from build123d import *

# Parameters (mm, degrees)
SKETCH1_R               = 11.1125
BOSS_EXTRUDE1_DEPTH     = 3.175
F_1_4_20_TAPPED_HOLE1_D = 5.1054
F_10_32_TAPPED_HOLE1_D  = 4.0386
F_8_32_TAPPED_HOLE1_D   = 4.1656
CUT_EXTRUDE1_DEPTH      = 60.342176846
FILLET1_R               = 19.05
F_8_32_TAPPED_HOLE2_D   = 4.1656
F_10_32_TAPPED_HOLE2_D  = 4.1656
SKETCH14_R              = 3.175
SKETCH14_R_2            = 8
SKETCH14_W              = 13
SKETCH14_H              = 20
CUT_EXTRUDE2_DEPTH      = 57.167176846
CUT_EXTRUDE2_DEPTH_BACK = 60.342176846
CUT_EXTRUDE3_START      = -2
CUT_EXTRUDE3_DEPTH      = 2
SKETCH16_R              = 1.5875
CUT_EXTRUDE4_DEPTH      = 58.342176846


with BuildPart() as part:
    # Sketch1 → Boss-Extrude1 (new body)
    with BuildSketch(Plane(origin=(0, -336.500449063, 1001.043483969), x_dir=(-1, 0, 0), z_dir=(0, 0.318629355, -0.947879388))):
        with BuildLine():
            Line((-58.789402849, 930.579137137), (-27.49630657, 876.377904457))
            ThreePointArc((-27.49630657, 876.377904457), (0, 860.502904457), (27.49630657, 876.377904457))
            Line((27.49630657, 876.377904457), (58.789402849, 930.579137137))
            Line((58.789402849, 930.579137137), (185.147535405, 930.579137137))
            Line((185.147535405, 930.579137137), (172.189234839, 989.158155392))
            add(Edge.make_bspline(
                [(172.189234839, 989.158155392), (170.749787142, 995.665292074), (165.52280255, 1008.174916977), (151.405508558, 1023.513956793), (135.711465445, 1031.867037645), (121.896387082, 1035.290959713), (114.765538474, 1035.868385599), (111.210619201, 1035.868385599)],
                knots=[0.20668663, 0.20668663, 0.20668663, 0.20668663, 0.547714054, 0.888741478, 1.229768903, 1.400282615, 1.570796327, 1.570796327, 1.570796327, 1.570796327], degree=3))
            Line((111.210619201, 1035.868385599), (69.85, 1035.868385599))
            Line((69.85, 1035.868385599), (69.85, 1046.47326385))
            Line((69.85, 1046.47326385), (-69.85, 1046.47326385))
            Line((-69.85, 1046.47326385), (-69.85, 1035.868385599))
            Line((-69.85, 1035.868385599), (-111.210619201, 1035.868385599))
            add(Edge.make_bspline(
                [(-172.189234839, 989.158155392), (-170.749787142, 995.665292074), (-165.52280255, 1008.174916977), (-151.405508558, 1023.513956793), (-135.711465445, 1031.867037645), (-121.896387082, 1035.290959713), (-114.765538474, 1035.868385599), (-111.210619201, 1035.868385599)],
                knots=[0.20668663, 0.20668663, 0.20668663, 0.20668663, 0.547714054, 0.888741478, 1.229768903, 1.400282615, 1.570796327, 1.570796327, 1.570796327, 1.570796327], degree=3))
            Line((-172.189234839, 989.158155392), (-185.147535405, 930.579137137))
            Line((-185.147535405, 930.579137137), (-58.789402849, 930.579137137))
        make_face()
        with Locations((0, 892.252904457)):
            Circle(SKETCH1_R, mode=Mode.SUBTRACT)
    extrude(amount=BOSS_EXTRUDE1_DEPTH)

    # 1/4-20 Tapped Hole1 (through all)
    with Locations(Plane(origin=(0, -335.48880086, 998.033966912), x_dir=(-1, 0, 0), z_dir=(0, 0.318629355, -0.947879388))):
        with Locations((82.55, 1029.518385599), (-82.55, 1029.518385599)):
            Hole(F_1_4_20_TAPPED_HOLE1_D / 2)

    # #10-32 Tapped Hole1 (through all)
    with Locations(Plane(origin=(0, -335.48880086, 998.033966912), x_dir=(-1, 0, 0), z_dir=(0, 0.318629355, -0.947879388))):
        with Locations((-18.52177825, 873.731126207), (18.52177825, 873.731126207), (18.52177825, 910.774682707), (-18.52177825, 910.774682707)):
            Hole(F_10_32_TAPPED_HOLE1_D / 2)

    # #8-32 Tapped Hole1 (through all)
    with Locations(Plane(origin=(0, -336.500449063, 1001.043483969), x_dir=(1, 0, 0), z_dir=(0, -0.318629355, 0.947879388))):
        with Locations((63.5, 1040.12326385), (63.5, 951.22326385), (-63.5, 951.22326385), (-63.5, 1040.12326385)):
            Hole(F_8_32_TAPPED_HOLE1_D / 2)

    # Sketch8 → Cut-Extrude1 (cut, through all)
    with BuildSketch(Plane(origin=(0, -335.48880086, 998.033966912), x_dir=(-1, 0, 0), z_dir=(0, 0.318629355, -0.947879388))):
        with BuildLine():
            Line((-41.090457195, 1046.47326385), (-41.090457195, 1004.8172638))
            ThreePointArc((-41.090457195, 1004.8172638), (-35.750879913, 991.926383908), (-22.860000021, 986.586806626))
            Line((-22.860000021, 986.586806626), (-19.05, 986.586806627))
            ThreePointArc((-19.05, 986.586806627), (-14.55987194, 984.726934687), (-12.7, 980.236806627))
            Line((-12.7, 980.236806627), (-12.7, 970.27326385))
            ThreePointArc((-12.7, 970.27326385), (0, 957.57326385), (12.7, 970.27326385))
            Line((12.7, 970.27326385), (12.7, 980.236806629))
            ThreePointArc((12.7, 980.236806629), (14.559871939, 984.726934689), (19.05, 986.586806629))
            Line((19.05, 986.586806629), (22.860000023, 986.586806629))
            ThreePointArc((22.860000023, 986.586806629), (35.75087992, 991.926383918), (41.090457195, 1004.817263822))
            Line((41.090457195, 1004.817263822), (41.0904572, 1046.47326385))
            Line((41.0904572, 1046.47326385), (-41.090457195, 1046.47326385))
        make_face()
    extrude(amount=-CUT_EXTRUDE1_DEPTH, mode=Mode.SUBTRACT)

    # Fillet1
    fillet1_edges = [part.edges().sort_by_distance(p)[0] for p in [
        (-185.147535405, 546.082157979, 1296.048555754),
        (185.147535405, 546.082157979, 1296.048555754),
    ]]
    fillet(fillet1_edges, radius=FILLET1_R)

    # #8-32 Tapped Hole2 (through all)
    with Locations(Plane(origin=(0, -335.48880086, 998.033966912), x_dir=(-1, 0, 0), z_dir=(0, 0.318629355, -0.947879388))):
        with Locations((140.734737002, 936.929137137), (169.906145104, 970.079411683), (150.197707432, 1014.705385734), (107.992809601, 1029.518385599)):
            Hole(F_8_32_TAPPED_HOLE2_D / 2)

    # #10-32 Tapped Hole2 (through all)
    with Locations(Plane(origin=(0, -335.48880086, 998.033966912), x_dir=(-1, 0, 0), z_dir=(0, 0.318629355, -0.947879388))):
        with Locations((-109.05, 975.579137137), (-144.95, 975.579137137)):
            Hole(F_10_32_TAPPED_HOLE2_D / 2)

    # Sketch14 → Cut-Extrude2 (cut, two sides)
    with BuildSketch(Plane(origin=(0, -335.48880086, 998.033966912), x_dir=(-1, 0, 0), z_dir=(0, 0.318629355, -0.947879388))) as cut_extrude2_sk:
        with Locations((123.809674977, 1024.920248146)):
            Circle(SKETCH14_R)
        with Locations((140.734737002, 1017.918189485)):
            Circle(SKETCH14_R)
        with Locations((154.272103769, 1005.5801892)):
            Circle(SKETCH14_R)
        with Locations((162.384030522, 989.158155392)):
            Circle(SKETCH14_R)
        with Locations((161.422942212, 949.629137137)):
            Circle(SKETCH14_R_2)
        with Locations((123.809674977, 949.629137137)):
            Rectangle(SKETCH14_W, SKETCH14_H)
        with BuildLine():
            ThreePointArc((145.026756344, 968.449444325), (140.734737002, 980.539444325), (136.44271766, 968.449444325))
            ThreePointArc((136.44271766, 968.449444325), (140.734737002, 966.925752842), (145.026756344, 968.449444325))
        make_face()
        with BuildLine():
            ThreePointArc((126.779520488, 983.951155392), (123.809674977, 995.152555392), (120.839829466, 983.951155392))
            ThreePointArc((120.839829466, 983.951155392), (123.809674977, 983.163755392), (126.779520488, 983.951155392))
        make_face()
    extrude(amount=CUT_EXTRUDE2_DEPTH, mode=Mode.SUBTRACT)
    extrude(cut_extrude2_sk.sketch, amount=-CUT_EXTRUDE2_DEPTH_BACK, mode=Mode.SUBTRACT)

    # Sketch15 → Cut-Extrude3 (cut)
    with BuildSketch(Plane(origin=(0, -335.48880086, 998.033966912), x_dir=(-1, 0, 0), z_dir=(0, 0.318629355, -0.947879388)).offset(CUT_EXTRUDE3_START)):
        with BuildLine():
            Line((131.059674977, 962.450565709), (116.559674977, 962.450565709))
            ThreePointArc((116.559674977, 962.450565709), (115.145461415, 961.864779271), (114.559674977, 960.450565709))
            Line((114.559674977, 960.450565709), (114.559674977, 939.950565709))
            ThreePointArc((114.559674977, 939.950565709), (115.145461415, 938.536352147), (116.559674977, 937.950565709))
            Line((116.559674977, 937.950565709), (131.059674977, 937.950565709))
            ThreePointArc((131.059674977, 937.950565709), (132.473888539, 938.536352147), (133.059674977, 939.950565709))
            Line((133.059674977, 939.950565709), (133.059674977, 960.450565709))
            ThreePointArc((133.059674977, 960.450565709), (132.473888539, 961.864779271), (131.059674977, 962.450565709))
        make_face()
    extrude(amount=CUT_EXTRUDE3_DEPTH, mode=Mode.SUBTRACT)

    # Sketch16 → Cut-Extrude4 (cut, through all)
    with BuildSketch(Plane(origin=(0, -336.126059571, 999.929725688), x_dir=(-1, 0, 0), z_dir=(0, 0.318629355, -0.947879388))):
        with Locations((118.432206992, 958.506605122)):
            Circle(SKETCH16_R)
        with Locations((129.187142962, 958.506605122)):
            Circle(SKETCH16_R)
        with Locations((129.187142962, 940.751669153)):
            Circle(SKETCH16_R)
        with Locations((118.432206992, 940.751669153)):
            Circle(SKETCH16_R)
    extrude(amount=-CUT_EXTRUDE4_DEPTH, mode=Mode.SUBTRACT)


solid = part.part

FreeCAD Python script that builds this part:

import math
import FreeCAD as App
import Part
import Sketcher
from FreeCAD import Vector
Q = App.Units.Quantity


def edges_at(feature, points):
    """Names of the edges that pass closest to the given points."""
    edges = feature.Shape.Edges
    near = lambda p: min(range(len(edges)), key=lambda i: edges[i].distToShape(Part.Vertex(*p))[0])
    return sorted({f"Edge{near(p) + 1}" for p in points})

doc = App.newDocument("Part")
body = doc.addObject("PartDesign::Body", "Body")

# Sketch on an angled plane
sketch1 = body.newObject("Sketcher::SketchObject", "Sketch")
sketch1.Placement = App.Placement(Vector(0, -336.500449, 1001.043484), App.Rotation(Vector(-1, 0, 0), Vector(0, 0.947879388, 0.318629355), Vector(0, 0.318629355, -0.947879388), "ZXY"))
sketch1.addGeometry([
    Part.LineSegment(Vector(-58.789403, 930.579137, 0), Vector(-27.496307, 876.377905, 0)),  # 0
    Part.ArcOfCircle(Part.Circle(Vector(0, 892.252905, 0), Vector(0, 0, 1), 31.75), math.radians(-150), math.radians(-30)),  # 1
    Part.LineSegment(Vector(27.496307, 876.377905, 0), Vector(58.789403, 930.579137, 0)),  # 2
    Part.LineSegment(Vector(58.789403, 930.579137, 0), Vector(185.147535, 930.579137, 0)),  # 3
    Part.LineSegment(Vector(185.147535, 930.579137, 0), Vector(172.189235, 989.158155, 0)),  # 4
    Part.BSplineCurve([Vector(172.189235, 989.158155, 0), Vector(170.749787, 995.665292, 0), Vector(165.522803, 1008.174917, 0), Vector(151.405509, 1023.513957, 0), Vector(135.711465, 1031.867038, 0), Vector(121.896387, 1035.29096, 0), Vector(114.765538, 1035.868386, 0), Vector(111.210619, 1035.868386, 0)], [4, 1, 1, 1, 1, 4], [0.20668663, 0.547714054, 0.888741478, 1.229768903, 1.400282615, 1.570796327], False, 3, [1, 1, 1, 1, 1, 1, 1, 1], False),  # 5
    Part.LineSegment(Vector(111.210619, 1035.868386, 0), Vector(69.85, 1035.868386, 0)),  # 6
    Part.LineSegment(Vector(69.85, 1035.868386, 0), Vector(69.85, 1046.473264, 0)),  # 7
    Part.LineSegment(Vector(69.85, 1046.473264, 0), Vector(-69.85, 1046.473264, 0)),  # 8
    Part.LineSegment(Vector(-69.85, 1046.473264, 0), Vector(-69.85, 1035.868386, 0)),  # 9
    Part.LineSegment(Vector(-69.85, 1035.868386, 0), Vector(-111.210619, 1035.868386, 0)),  # 10
    Part.BSplineCurve([Vector(-172.189235, 989.158155, 0), Vector(-170.749787, 995.665292, 0), Vector(-165.522803, 1008.174917, 0), Vector(-151.405509, 1023.513957, 0), Vector(-135.711465, 1031.867038, 0), Vector(-121.896387, 1035.29096, 0), Vector(-114.765538, 1035.868386, 0), Vector(-111.210619, 1035.868386, 0)], [4, 1, 1, 1, 1, 4], [0.20668663, 0.547714054, 0.888741478, 1.229768903, 1.400282615, 1.570796327], False, 3, [1, 1, 1, 1, 1, 1, 1, 1], False),  # 11
    Part.LineSegment(Vector(-172.189235, 989.158155, 0), Vector(-185.147535, 930.579137, 0)),  # 12
    Part.LineSegment(Vector(-185.147535, 930.579137, 0), Vector(-58.789403, 930.579137, 0)),  # 13
    Part.Circle(Vector(0, 892.252905, 0), Vector(0, 0, 1), 11.1125),  # 14
], False)
sketch1.addConstraint([
    Sketcher.Constraint("Block", 5),
    Sketcher.Constraint("Block", 11),
    Sketcher.Constraint("Coincident", 0, 2, 1, 1),
    Sketcher.Constraint("Coincident", 1, 2, 2, 1),
    Sketcher.Constraint("Coincident", 2, 2, 3, 1),
    Sketcher.Constraint("Coincident", 3, 2, 4, 1),
    Sketcher.Constraint("Coincident", 4, 2, 5, 1),
    Sketcher.Constraint("Coincident", 5, 2, 6, 1),
    Sketcher.Constraint("Coincident", 6, 2, 7, 1),
    Sketcher.Constraint("Coincident", 7, 2, 8, 1),
    Sketcher.Constraint("Coincident", 8, 2, 9, 1),
    Sketcher.Constraint("Coincident", 9, 2, 10, 1),
    Sketcher.Constraint("Coincident", 10, 2, 11, 2),
    Sketcher.Constraint("Coincident", 11, 1, 12, 1),
    Sketcher.Constraint("Coincident", 12, 2, 13, 1),
    Sketcher.Constraint("Coincident", 13, 2, 0, 1),
    Sketcher.Constraint("Horizontal", 3),
    Sketcher.Constraint("Horizontal", 6),
    Sketcher.Constraint("Vertical", 7),
    Sketcher.Constraint("Horizontal", 8),
    Sketcher.Constraint("Vertical", 9),
    Sketcher.Constraint("Horizontal", 10),
    Sketcher.Constraint("Horizontal", 13),
    Sketcher.Constraint("Coincident", 14, 3, 1, 3),
    Sketcher.Constraint("PointOnObject", 1, 3, -2),
    Sketcher.Constraint("Radius", 1, Q("1.25 in")),
    Sketcher.Constraint("Diameter", 14, Q("0.875 in")),
    Sketcher.Constraint("DistanceX", 8, 2, 8, 1, Q("5.5 in")),
    Sketcher.Constraint("DistanceX", -1, 1, 6, 2, Q("2.75 in")),
    Sketcher.Constraint("DistanceY", 0, 2, 1, 3, Q("0.625 in")),
    Sketcher.Constraint("DistanceY", 1, 2, 1, 3, Q("0.625 in")),
    Sketcher.Constraint("DistanceY", 7, 1, 7, 2, 10.604878),
    Sketcher.Constraint("DistanceX", 4, 2, 3, 2, 12.958301),
    Sketcher.Constraint("DistanceX", 3, 1, 3, 2, 126.358133),
    Sketcher.Constraint("DistanceX", 13, 1, 13, 2, 126.358133),
    Sketcher.Constraint("DistanceY", 3, 2, 4, 2, 58.579018),
    Sketcher.Constraint("DistanceY", 1, 2, 4, 2, 112.780251),
    Sketcher.Constraint("DistanceY", 12, 2, 10, 2, 105.289248),
    Sketcher.Constraint("DistanceX", 12, 2, 0, 2, 157.651229),
])
pad1 = body.newObject("PartDesign::Pad", "Pad")
pad1.Profile = sketch1
pad1.Length = Q("0.125 in")

# Sketch on an angled plane
sketch2 = body.newObject("Sketcher::SketchObject", "Sketch001")
sketch2.Placement = App.Placement(Vector(0, -335.488801, 998.033967), App.Rotation(Vector(-1, 0, 0), Vector(0, 0.947879388, 0.318629355), Vector(0, 0.318629355, -0.947879388), "ZXY"))
sketch2.addGeometry([
    Part.Circle(Vector(82.55, 1029.518386, 0), Vector(0, 0, 1), 2.5527),
    Part.Circle(Vector(-82.55, 1029.518386, 0), Vector(0, 0, 1), 2.5527),
], False)
sketch2.addConstraint([
    Sketcher.Constraint("Equal", 0, 1),
    Sketcher.Constraint("Symmetric", 0, 3, 1, 3, -2),
    Sketcher.Constraint("Diameter", 0, Q("0.201 in")),
    Sketcher.Constraint("DistanceX", 1, 3, 0, 3, Q("6.5 in")),
    Sketcher.Constraint("DistanceY", -1, 1, 0, 3, 1029.518386),
])
doc.recompute()
hole = body.newObject("PartDesign::Hole", "Hole")
hole.Profile = sketch2
hole.ThreadType = "None"
hole.Diameter = Q("0.201 in")
hole.DepthType = "ThroughAll"

# Sketch on an angled plane
sketch3 = body.newObject("Sketcher::SketchObject", "Sketch002")
sketch3.Placement = App.Placement(Vector(0, -335.488801, 998.033967), App.Rotation(Vector(-1, 0, 0), Vector(0, 0.947879388, 0.318629355), Vector(0, 0.318629355, -0.947879388), "ZXY"))
sketch3.addGeometry([
    Part.Circle(Vector(-18.521778, 873.731126, 0), Vector(0, 0, 1), 2.0193),
    Part.Circle(Vector(18.521778, 873.731126, 0), Vector(0, 0, 1), 2.0193),
    Part.Circle(Vector(18.521778, 910.774683, 0), Vector(0, 0, 1), 2.0193),
    Part.Circle(Vector(-18.521778, 910.774683, 0), Vector(0, 0, 1), 2.0193),
], False)
sketch3.addConstraint([
    Sketcher.Constraint("Equal", 0, 1),
    Sketcher.Constraint("Equal", 1, 2),
    Sketcher.Constraint("Equal", 2, 3),
    Sketcher.Constraint("Symmetric", 0, 3, 1, 3, -2),
    Sketcher.Constraint("Symmetric", 2, 3, 3, 3, -2),
    Sketcher.Constraint("Vertical", 1, 3, 2, 3),
    Sketcher.Constraint("Diameter", 0, Q("0.159 in")),
    Sketcher.Constraint("DistanceX", 0, 3, -1, 1, 18.521778),
    Sketcher.Constraint("DistanceY", -1, 1, 0, 3, 873.731126),
    Sketcher.Constraint("DistanceY", -1, 1, 2, 3, 910.774683),
])
doc.recompute()
hole2 = body.newObject("PartDesign::Hole", "Hole001")
hole2.Profile = sketch3
hole2.ThreadType = "None"
hole2.Diameter = Q("0.159 in")
hole2.DepthType = "ThroughAll"

# Sketch on an angled plane
sketch4 = body.newObject("Sketcher::SketchObject", "Sketch003")
sketch4.Placement = App.Placement(Vector(0, -336.500449, 1001.043484), App.Rotation(Vector(1, 0, 0), Vector(0, 0.947879388, 0.318629355), Vector(0, -0.318629355, 0.947879388), "ZXY"))
sketch4.addGeometry([
    Part.Circle(Vector(63.5, 1040.123264, 0), Vector(0, 0, 1), 2.0828),
    Part.Circle(Vector(63.5, 951.223264, 0), Vector(0, 0, 1), 2.0828),
    Part.Circle(Vector(-63.5, 951.223264, 0), Vector(0, 0, 1), 2.0828),
    Part.Circle(Vector(-63.5, 1040.123264, 0), Vector(0, 0, 1), 2.0828),
], False)
sketch4.addConstraint([
    Sketcher.Constraint("Equal", 0, 1),
    Sketcher.Constraint("Equal", 1, 2),
    Sketcher.Constraint("Equal", 2, 3),
    Sketcher.Constraint("Symmetric", 1, 3, 2, 3, -2),
    Sketcher.Constraint("Symmetric", 0, 3, 3, 3, -2),
    Sketcher.Constraint("Vertical", 0, 3, 1, 3),
    Sketcher.Constraint("Diameter", 0, Q("0.164 in")),
    Sketcher.Constraint("DistanceX", 2, 3, 1, 3, Q("5 in")),
    Sketcher.Constraint("DistanceY", 1, 3, 0, 3, Q("3.5 in")),
    Sketcher.Constraint("DistanceY", -1, 1, 0, 3, 1040.123264),
])
doc.recompute()
hole3 = body.newObject("PartDesign::Hole", "Hole002")
hole3.Profile = sketch4
hole3.ThreadType = "None"
hole3.Diameter = Q("0.164 in")
hole3.DepthType = "ThroughAll"

# Sketch on an angled plane
sketch5 = body.newObject("Sketcher::SketchObject", "Sketch004")
sketch5.Placement = App.Placement(Vector(0, -335.488801, 998.033967), App.Rotation(Vector(-1, 0, 0), Vector(0, 0.947879388, 0.318629355), Vector(0, 0.318629355, -0.947879388), "ZXY"))
sketch5.addGeometry([
    Part.LineSegment(Vector(-41.090457, 1046.473264, 0), Vector(-41.090457, 1004.817264, 0)),  # 0
    Part.ArcOfCircle(Part.Circle(Vector(-22.86, 1004.817264, 0), Vector(0, 0, 1), 18.230457), math.radians(180), math.radians(270)),  # 1
    Part.LineSegment(Vector(-22.86, 986.586807, 0), Vector(-19.05, 986.586807, 0)),  # 2
    Part.ArcOfCircle(Part.Circle(Vector(-19.05, 980.236807, 0), Vector(0, 0, 1), 6.35), math.radians(0), math.radians(90)),  # 3
    Part.LineSegment(Vector(-12.7, 980.236807, 0), Vector(-12.7, 970.273264, 0)),  # 4
    Part.ArcOfCircle(Part.Circle(Vector(0, 970.273264, 0), Vector(0, 0, 1), 12.7), math.radians(180), math.radians(360)),  # 5
    Part.LineSegment(Vector(12.7, 970.273264, 0), Vector(12.7, 980.236807, 0)),  # 6
    Part.ArcOfCircle(Part.Circle(Vector(19.05, 980.236807, 0), Vector(0, 0, 1), 6.35), math.radians(90), math.radians(180)),  # 7
    Part.LineSegment(Vector(19.05, 986.586807, 0), Vector(22.86, 986.586807, 0)),  # 8
    Part.ArcOfCircle(Part.Circle(Vector(22.86, 1004.817264, 0), Vector(0, 0, 1), 18.230457), math.radians(-90), math.radians(0)),  # 9
    Part.LineSegment(Vector(41.090457, 1004.817264, 0), Vector(41.090457, 1046.473264, 0)),  # 10
    Part.LineSegment(Vector(41.090457, 1046.473264, 0), Vector(-41.090457, 1046.473264, 0)),  # 11
], False)
sketch5.addConstraint([
    Sketcher.Constraint("Tangent", 0, 2, 1, 1),
    Sketcher.Constraint("Tangent", 1, 2, 2, 1),
    Sketcher.Constraint("Tangent", 2, 2, 3, 2),
    Sketcher.Constraint("Tangent", 3, 1, 4, 1),
    Sketcher.Constraint("Tangent", 4, 2, 5, 1),
    Sketcher.Constraint("Tangent", 5, 2, 6, 1),
    Sketcher.Constraint("Tangent", 6, 2, 7, 2),
    Sketcher.Constraint("Tangent", 7, 1, 8, 1),
    Sketcher.Constraint("Tangent", 8, 2, 9, 1),
    Sketcher.Constraint("Tangent", 9, 2, 10, 1),
    Sketcher.Constraint("Coincident", 10, 2, 11, 1),
    Sketcher.Constraint("Coincident", 11, 2, 0, 1),
    Sketcher.Constraint("Vertical", 0),
    Sketcher.Constraint("Horizontal", 2),
    Sketcher.Constraint("Vertical", 4),
    Sketcher.Constraint("Vertical", 6),
    Sketcher.Constraint("Horizontal", 8),
    Sketcher.Constraint("Vertical", 10),
    Sketcher.Constraint("Horizontal", 11),
    Sketcher.Constraint("Equal", 3, 7),
    Sketcher.Constraint("Equal", 1, 9),
    Sketcher.Constraint("Symmetric", 3, 3, 7, 3, -2),
    Sketcher.Constraint("Equal", 2, 8),
    Sketcher.Constraint("Radius", 5, Q("0.5 in")),
    Sketcher.Constraint("Radius", 3, Q("0.25 in")),
    Sketcher.Constraint("DistanceX", 2, 1, 2, 2, Q("0.15 in")),
    Sketcher.Constraint("DistanceY", 0, 2, 0, 1, Q("1.64 in")),
    Sketcher.Constraint("DistanceY", 5, 3, 1, 3, Q("1.36 in")),
    Sketcher.Constraint("Radius", 1, 18.230457),
    Sketcher.Constraint("DistanceY", -1, 1, 1, 3, 1004.817264),
])
pocket1 = body.newObject("PartDesign::Pocket", "Pocket")
pocket1.Profile = sketch5
pocket1.Type = "ThroughAll"
doc.recompute()

fillet = body.newObject("PartDesign::Fillet", "Fillet")
fillet.Base = (pocket1, edges_at(pocket1, [(-185.148, 546.082, 1296.049), (185.148, 546.082, 1296.049)]))
fillet.Radius = Q("0.75 in")

# Sketch on an angled plane
sketch6 = body.newObject("Sketcher::SketchObject", "Sketch005")
sketch6.Placement = App.Placement(Vector(0, -335.488801, 998.033967), App.Rotation(Vector(-1, 0, 0), Vector(0, 0.947879388, 0.318629355), Vector(0, 0.318629355, -0.947879388), "ZXY"))
sketch6.addGeometry([
    Part.Circle(Vector(140.734737, 936.929137, 0), Vector(0, 0, 1), 2.0828),
    Part.Circle(Vector(169.906145, 970.079412, 0), Vector(0, 0, 1), 2.0828),
    Part.Circle(Vector(150.197707, 1014.705386, 0), Vector(0, 0, 1), 2.0828),
    Part.Circle(Vector(107.99281, 1029.518386, 0), Vector(0, 0, 1), 2.0828),
], False)
sketch6.addConstraint([
    Sketcher.Constraint("Equal", 0, 1),
    Sketcher.Constraint("Equal", 1, 2),
    Sketcher.Constraint("Equal", 2, 3),
    Sketcher.Constraint("Diameter", 0, Q("0.164 in")),
    Sketcher.Constraint("DistanceY", 2, 3, 3, 3, 14.813),
    Sketcher.Constraint("DistanceY", -1, 1, 1, 3, 970.079412),
    Sketcher.Constraint("DistanceX", -1, 1, 3, 3, 107.99281),
    Sketcher.Constraint("DistanceX", 0, 3, 1, 3, 29.171408),
    Sketcher.Constraint("DistanceX", 0, 3, 2, 3, 9.46297),
    Sketcher.Constraint("DistanceY", 0, 3, 2, 3, 77.776249),
    Sketcher.Constraint("DistanceX", -1, 1, 0, 3, 140.734737),
    Sketcher.Constraint("DistanceY", -1, 1, 0, 3, 936.929137),
])
doc.recompute()
hole4 = body.newObject("PartDesign::Hole", "Hole003")
hole4.Profile = sketch6
hole4.ThreadType = "None"
hole4.Diameter = Q("0.164 in")
hole4.DepthType = "ThroughAll"

# Sketch on an angled plane
sketch7 = body.newObject("Sketcher::SketchObject", "Sketch006")
sketch7.Placement = App.Placement(Vector(0, -335.488801, 998.033967), App.Rotation(Vector(-1, 0, 0), Vector(0, 0.947879388, 0.318629355), Vector(0, 0.318629355, -0.947879388), "ZXY"))
sketch7.addGeometry([
    Part.Circle(Vector(-109.05, 975.579137, 0), Vector(0, 0, 1), 2.0828),
    Part.Circle(Vector(-144.95, 975.579137, 0), Vector(0, 0, 1), 2.0828),
], False)
sketch7.addConstraint([
    Sketcher.Constraint("Equal", 0, 1),
    Sketcher.Constraint("Horizontal", 0, 3, 1, 3),
    Sketcher.Constraint("Diameter", 0, Q("0.164 in")),
    Sketcher.Constraint("DistanceX", 0, 3, -1, 1, 109.05),
    Sketcher.Constraint("DistanceX", 1, 3, -1, 1, 144.95),
    Sketcher.Constraint("DistanceY", -1, 1, 0, 3, 975.579137),
])
doc.recompute()
hole5 = body.newObject("PartDesign::Hole", "Hole004")
hole5.Profile = sketch7
hole5.ThreadType = "None"
hole5.Diameter = Q("0.164 in")
hole5.DepthType = "ThroughAll"

# Sketch on an angled plane
sketch8 = body.newObject("Sketcher::SketchObject", "Sketch007")
sketch8.Placement = App.Placement(Vector(0, -335.488801, 998.033967), App.Rotation(Vector(-1, 0, 0), Vector(0, 0.947879388, 0.318629355), Vector(0, 0.318629355, -0.947879388), "ZXY"))
sketch8.addGeometry([
    Part.Circle(Vector(123.809675, 1024.920248, 0), Vector(0, 0, 1), 3.175),  # 0
    Part.Circle(Vector(140.734737, 1017.91819, 0), Vector(0, 0, 1), 3.175),  # 1
    Part.Circle(Vector(154.272104, 1005.580189, 0), Vector(0, 0, 1), 3.175),  # 2
    Part.Circle(Vector(162.384031, 989.158155, 0), Vector(0, 0, 1), 3.175),  # 3
    Part.Circle(Vector(161.422942, 949.629137, 0), Vector(0, 0, 1), 8),  # 4
    Part.LineSegment(Vector(117.309675, 959.629137, 0), Vector(117.309675, 939.629137, 0)),  # 5
    Part.LineSegment(Vector(117.309675, 939.629137, 0), Vector(130.309675, 939.629137, 0)),  # 6
    Part.LineSegment(Vector(130.309675, 939.629137, 0), Vector(130.309675, 959.629137, 0)),  # 7
    Part.LineSegment(Vector(130.309675, 959.629137, 0), Vector(117.309675, 959.629137, 0)),  # 8
    Part.ArcOfCircle(Part.Circle(Vector(140.734737, 973.732599, 0), Vector(0, 0, 1), 6.806846), math.radians(-50.909692), math.radians(230.909692)),  # 9
    Part.ArcOfCircle(Part.Circle(Vector(140.734737, 973.732599, 0), Vector(0, 0, 1), 6.806846), math.radians(-129.090308), math.radians(-50.909692)),  # 10
    Part.ArcOfCircle(Part.Circle(Vector(123.809675, 989.158155, 0), Vector(0, 0, 1), 5.9944), math.radians(-60.301452), math.radians(240.301452)),  # 11
    Part.ArcOfCircle(Part.Circle(Vector(123.809675, 989.158155, 0), Vector(0, 0, 1), 5.9944), math.radians(-119.698548), math.radians(-60.301452)),  # 12
], False)
sketch8.addConstraint([
    Sketcher.Constraint("Coincident", 5, 2, 6, 1),
    Sketcher.Constraint("Coincident", 6, 2, 7, 1),
    Sketcher.Constraint("Coincident", 7, 2, 8, 1),
    Sketcher.Constraint("Coincident", 8, 2, 5, 1),
    Sketcher.Constraint("Tangent", 9, 1, 10, 2),
    Sketcher.Constraint("Coincident", 10, 1, 9, 2),
    Sketcher.Constraint("Tangent", 11, 1, 12, 2),
    Sketcher.Constraint("Coincident", 12, 1, 11, 2),
    Sketcher.Constraint("Vertical", 5),
    Sketcher.Constraint("Horizontal", 6),
    Sketcher.Constraint("Vertical", 7),
    Sketcher.Constraint("Horizontal", 8),
    Sketcher.Constraint("Equal", 0, 1),
    Sketcher.Constraint("Equal", 1, 2),
    Sketcher.Constraint("Equal", 2, 3),
    Sketcher.Constraint("Horizontal", 3, 3, 11, 3),
    Sketcher.Constraint("Horizontal", 9, 1, 10, 1),
    Sketcher.Constraint("Horizontal", 11, 1, 12, 1),
    Sketcher.Constraint("Vertical", 1, 3, 9, 3),
    Sketcher.Constraint("Vertical", 0, 3, 11, 3),
    Sketcher.Constraint("Diameter", 0, Q("0.25 in")),
    Sketcher.Constraint("Radius", 11, Q("0.236 in")),
    Sketcher.Constraint("Diameter", 4, 16.0),
    Sketcher.Constraint("DistanceY", 11, 1, 12, 3, Q("0.205 in")),
    Sketcher.Constraint("DistanceX", 6, 1, 6, 2, 13.0),
    Sketcher.Constraint("DistanceY", 5, 2, 5, 1, 20.0),
    Sketcher.Constraint("Radius", 9, 6.806846),
    Sketcher.Constraint("DistanceY", -1, 1, 9, 3, 973.732599),
    Sketcher.Constraint("DistanceY", 2, 3, 1, 3, 12.338),
    Sketcher.Constraint("DistanceY", 5, 2, 4, 3, 10.0),
    Sketcher.Constraint("DistanceX", 5, 2, 12, 3, 6.5),
    Sketcher.Constraint("DistanceY", -1, 1, 0, 3, 1024.920248),
    Sketcher.Constraint("DistanceY", -1, 1, 1, 3, 1017.91819),
    Sketcher.Constraint("DistanceX", -1, 1, 3, 3, 162.384031),
    Sketcher.Constraint("DistanceX", -1, 1, 11, 1, 126.77952),
    Sketcher.Constraint("DistanceX", 0, 3, 2, 3, 30.462429),
    Sketcher.Constraint("DistanceX", 4, 3, 3, 3, 0.961088),
    Sketcher.Constraint("DistanceY", 4, 3, 3, 3, 39.529018),
    Sketcher.Constraint("DistanceY", 4, 3, 0, 3, 75.291111),
    Sketcher.Constraint("DistanceX", 9, 3, 9, 1, 4.292019),
    Sketcher.Constraint("DistanceX", 7, 2, 9, 1, 14.717081),
])
pocket2 = body.newObject("PartDesign::Pocket", "Pocket001")
pocket2.Profile = sketch8
pocket2.Type = "ThroughAll"
pocket2.Midplane = True

# Sketch on an angled plane
sketch9 = body.newObject("Sketcher::SketchObject", "Sketch008")
sketch9.Placement = App.Placement(Vector(0, -336.12606, 999.929726), App.Rotation(Vector(-1, 0, 0), Vector(0, 0.947879388, 0.318629355), Vector(0, 0.318629355, -0.947879388), "ZXY"))
sketch9.addGeometry([
    Part.LineSegment(Vector(131.059675, 962.450566, 0), Vector(116.559675, 962.450566, 0)),  # 0
    Part.ArcOfCircle(Part.Circle(Vector(116.559675, 960.450566, 0), Vector(0, 0, 1), 2), math.radians(90), math.radians(180)),  # 1
    Part.LineSegment(Vector(114.559675, 960.450566, 0), Vector(114.559675, 939.950566, 0)),  # 2
    Part.ArcOfCircle(Part.Circle(Vector(116.559675, 939.950566, 0), Vector(0, 0, 1), 2), math.radians(-180), math.radians(-90)),  # 3
    Part.LineSegment(Vector(116.559675, 937.950566, 0), Vector(131.059675, 937.950566, 0)),  # 4
    Part.ArcOfCircle(Part.Circle(Vector(131.059675, 939.950566, 0), Vector(0, 0, 1), 2), math.radians(-90), math.radians(0)),  # 5
    Part.LineSegment(Vector(133.059675, 939.950566, 0), Vector(133.059675, 960.450566, 0)),  # 6
    Part.ArcOfCircle(Part.Circle(Vector(131.059675, 960.450566, 0), Vector(0, 0, 1), 2), math.radians(0), math.radians(90)),  # 7
], False)
sketch9.addConstraint([
    Sketcher.Constraint("Tangent", 0, 2, 1, 1),
    Sketcher.Constraint("Tangent", 1, 2, 2, 1),
    Sketcher.Constraint("Tangent", 2, 2, 3, 1),
    Sketcher.Constraint("Tangent", 3, 2, 4, 1),
    Sketcher.Constraint("Tangent", 4, 2, 5, 1),
    Sketcher.Constraint("Tangent", 5, 2, 6, 1),
    Sketcher.Constraint("Tangent", 6, 2, 7, 1),
    Sketcher.Constraint("Tangent", 7, 2, 0, 1),
    Sketcher.Constraint("Horizontal", 0),
    Sketcher.Constraint("Vertical", 2),
    Sketcher.Constraint("Horizontal", 4),
    Sketcher.Constraint("Vertical", 6),
    Sketcher.Constraint("Equal", 1, 3),
    Sketcher.Constraint("Equal", 3, 5),
    Sketcher.Constraint("Equal", 5, 7),
    Sketcher.Constraint("Radius", 1, 2.0),
    Sketcher.Constraint("DistanceX", 0, 2, 0, 1, 14.5),
    Sketcher.Constraint("DistanceY", 2, 2, 2, 1, 20.5),
    Sketcher.Constraint("DistanceX", -1, 1, 1, 3, 116.559675),
    Sketcher.Constraint("DistanceY", -1, 1, 1, 3, 960.450566),
])
pocket3 = body.newObject("PartDesign::Pocket", "Pocket002")
pocket3.Profile = sketch9
pocket3.Length = 2
pocket3.Reversed = True

# Sketch on an angled plane
sketch10 = body.newObject("Sketcher::SketchObject", "Sketch009")
sketch10.Placement = App.Placement(Vector(0, -336.12606, 999.929726), App.Rotation(Vector(-1, 0, 0), Vector(0, 0.947879388, 0.318629355), Vector(0, 0.318629355, -0.947879388), "ZXY"))
sketch10.addGeometry([
    Part.Circle(Vector(118.432207, 958.506605, 0), Vector(0, 0, 1), 1.5875),
    Part.Circle(Vector(129.187143, 958.506605, 0), Vector(0, 0, 1), 1.5875),
    Part.Circle(Vector(129.187143, 940.751669, 0), Vector(0, 0, 1), 1.5875),
    Part.Circle(Vector(118.432207, 940.751669, 0), Vector(0, 0, 1), 1.5875),
], False)
sketch10.addConstraint([
    Sketcher.Constraint("Equal", 0, 1),
    Sketcher.Constraint("Equal", 1, 2),
    Sketcher.Constraint("Equal", 2, 3),
    Sketcher.Constraint("Horizontal", 0, 3, 1, 3),
    Sketcher.Constraint("Horizontal", 2, 3, 3, 3),
    Sketcher.Constraint("Vertical", 1, 3, 2, 3),
    Sketcher.Constraint("Vertical", 0, 3, 3, 3),
    Sketcher.Constraint("Diameter", 0, Q("0.125 in")),
    Sketcher.Constraint("DistanceY", -1, 1, 2, 3, 940.751669),
    Sketcher.Constraint("DistanceX", -1, 1, 0, 3, 118.432207),
    Sketcher.Constraint("DistanceY", -1, 1, 0, 3, 958.506605),
    Sketcher.Constraint("DistanceX", -1, 1, 1, 3, 129.187143),
])
pocket4 = body.newObject("PartDesign::Pocket", "Pocket003")
pocket4.Profile = sketch10
pocket4.Type = "ThroughAll"

doc.recompute()
